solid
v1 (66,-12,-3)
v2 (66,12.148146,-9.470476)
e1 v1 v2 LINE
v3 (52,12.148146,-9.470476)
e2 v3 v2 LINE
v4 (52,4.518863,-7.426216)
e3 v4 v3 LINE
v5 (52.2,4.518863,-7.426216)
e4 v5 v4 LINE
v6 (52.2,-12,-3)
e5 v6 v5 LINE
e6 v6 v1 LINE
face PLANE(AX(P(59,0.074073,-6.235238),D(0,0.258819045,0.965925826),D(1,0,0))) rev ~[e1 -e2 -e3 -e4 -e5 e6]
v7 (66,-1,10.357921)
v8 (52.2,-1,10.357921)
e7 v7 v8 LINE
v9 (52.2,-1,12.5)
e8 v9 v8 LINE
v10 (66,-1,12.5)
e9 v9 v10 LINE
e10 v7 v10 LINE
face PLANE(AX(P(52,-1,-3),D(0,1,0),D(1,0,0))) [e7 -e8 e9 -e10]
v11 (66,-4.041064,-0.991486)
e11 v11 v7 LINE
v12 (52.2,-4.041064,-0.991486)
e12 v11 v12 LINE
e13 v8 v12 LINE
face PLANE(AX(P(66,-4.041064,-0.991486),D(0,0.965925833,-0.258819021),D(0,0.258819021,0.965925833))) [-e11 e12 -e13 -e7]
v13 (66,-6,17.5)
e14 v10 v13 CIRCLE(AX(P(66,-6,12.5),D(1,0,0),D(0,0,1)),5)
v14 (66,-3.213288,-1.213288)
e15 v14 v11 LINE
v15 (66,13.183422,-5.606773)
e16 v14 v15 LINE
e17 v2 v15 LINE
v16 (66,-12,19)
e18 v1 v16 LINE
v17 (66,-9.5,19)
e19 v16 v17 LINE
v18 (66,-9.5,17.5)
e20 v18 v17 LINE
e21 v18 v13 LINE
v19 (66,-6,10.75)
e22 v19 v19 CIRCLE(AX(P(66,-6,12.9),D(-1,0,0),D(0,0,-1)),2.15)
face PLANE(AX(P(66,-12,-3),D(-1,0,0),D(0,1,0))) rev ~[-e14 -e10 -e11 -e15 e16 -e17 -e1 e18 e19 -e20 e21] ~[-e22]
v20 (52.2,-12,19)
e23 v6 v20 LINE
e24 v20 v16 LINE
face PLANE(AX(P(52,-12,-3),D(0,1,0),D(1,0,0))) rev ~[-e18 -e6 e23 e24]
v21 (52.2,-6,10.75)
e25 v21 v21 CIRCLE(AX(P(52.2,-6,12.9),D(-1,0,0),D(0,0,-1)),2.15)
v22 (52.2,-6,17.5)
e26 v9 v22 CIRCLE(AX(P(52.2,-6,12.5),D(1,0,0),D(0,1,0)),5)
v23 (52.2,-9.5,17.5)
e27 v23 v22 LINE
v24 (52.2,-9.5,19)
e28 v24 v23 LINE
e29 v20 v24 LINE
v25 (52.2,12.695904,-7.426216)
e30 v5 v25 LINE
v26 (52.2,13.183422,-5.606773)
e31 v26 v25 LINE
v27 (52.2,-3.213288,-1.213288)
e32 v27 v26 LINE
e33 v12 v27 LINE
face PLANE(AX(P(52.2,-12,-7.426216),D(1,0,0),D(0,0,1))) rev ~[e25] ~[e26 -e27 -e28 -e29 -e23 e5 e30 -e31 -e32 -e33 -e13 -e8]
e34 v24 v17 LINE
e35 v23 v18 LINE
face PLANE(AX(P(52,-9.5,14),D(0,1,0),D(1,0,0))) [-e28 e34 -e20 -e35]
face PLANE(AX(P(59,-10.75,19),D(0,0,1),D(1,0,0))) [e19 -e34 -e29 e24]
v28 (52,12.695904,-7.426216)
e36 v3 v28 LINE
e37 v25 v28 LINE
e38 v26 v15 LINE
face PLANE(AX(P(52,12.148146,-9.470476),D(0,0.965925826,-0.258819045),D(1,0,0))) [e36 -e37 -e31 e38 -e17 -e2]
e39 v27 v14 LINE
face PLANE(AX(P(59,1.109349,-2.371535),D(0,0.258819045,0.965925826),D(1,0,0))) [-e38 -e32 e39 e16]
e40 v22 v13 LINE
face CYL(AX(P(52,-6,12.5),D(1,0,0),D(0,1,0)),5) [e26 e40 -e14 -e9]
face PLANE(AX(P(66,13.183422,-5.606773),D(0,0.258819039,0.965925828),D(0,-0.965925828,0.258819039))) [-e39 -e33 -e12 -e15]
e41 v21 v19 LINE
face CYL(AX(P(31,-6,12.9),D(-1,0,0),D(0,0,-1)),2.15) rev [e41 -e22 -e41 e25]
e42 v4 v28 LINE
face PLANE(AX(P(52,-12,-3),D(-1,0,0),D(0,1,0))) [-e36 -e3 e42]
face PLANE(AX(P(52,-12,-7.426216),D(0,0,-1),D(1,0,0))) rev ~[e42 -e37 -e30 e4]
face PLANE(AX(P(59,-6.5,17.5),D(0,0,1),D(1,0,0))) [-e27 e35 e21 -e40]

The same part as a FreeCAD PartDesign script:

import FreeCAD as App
import Part
import Sketcher

V = App.Vector
Q = App.Units.Quantity


def edges_at(feature, points):
    """Names of the edges that pass closest to the given points."""
    edges = feature.Shape.Edges
    near = lambda p: min(range(len(edges)), key=lambda i: edges[i].distToShape(Part.Vertex(*p))[0])
    return sorted({f"Edge{near(p) + 1}" for p in points})


def add_polygon(sketch, points):
    """Adds a closed chain of lines whose ends are joined by coincident constraints."""
    first, n = sketch.GeometryCount, len(points)
    for a, b in zip(points, points[1:] + points[:1]):
        sketch.addGeometry(Part.LineSegment(App.Vector(*a, 0), App.Vector(*b, 0)), False)
    for i in range(n):
        sketch.addConstraint(Sketcher.Constraint("Coincident", first + i, 2, first + (i + 1) % n, 1))

doc = App.newDocument("Part")
params = doc.addObject("Spreadsheet::Sheet", "Params")
for row, (alias, value) in enumerate([
    ("sketch1_diameter", "4.3 mm"),
    ("pad1_length", "50 mm"),
    ("sketch2_width", "14 mm"),
    ("sketch2_height", "11 mm"),
    ("pad2_length", "20.5 mm"),
    ("chamfer_size", "4 mm"),
    ("fillet_radius", "5 mm"),
    ("sketch3_width", "14 mm"),
    ("sketch3_height", "25 mm"),
    ("pad3_length", "4 mm"),
    ("sketch4_width", "14 mm"),
    ("sketch4_height", "2.5 mm"),
    ("pad4_length", "5 mm"),
    ("pocket1_length", "15 mm"),
    ("sketch6_width", "0.2 mm"),
    ("pocket2_length", "80 mm"),
], start=1):
    params.set(f"A{row}", alias)
    params.set(f"B{row}", "=" + value)
    params.setAlias(f"B{row}", alias)

body = doc.addObject("PartDesign::Body", "Body")

sketch1 = body.newObject("Sketcher::SketchObject", "Sketch")
sketch1.AttachmentSupport = (doc.getObject("XY_Plane"), [""])
sketch1.MapMode = "FlatFace"
sketch1.addGeometry(Part.Circle(V(0, 0, 0), V(0, 0, 1), 2.15), False)
sketch1.addConstraint(Sketcher.Constraint("Coincident", 0, 3, -1, 1))
sketch1.addConstraint(Sketcher.Constraint("Diameter", 0, Q("4.3 mm")))
sketch1.setExpression("Constraints[1]", "Params.sketch1_diameter")
pad1 = body.newObject("PartDesign::Pad", "Pad")
pad1.Profile = sketch1
pad1.setExpression("Length", "Params.pad1_length")
body2 = doc.addObject("PartDesign::Body", "Body001")
doc.recompute()

body.Placement = App.Placement(V(0, 0, 0), App.Rotation(V(0, 1, 0), 90))
boolean = body2.newObject("PartDesign::Boolean", "Boolean")
boolean.Type = "Fuse"
boolean.addObjects([body])
body3 = doc.addObject("PartDesign::Body", "Body002")
doc.recompute()

body2.Placement = App.Placement(V(31, -6, 12.9), App.Rotation(V(0, 0, 1), 0))
boolean2 = body3.newObject("PartDesign::Boolean", "Boolean001")
boolean2.Type = "Fuse"
boolean2.addObjects([body2])
body4 = doc.addObject("PartDesign::Body", "Body003")

sketch2 = body4.newObject("Sketcher::SketchObject", "Sketch001")
sketch2.AttachmentSupport = (doc.getObject("XY_Plane003"), [""])
sketch2.MapMode = "FlatFace"
sketch2.AttachmentOffset = App.Placement(V(0, 0, -3), App.Rotation())
add_polygon(sketch2, [(52, -1), (52, -12), (66, -12), (66, -1)])
sketch2.addConstraint(Sketcher.Constraint("Vertical", 0))
sketch2.addConstraint(Sketcher.Constraint("Horizontal", 1))
sketch2.addConstraint(Sketcher.Constraint("Vertical", 2))
sketch2.addConstraint(Sketcher.Constraint("Horizontal", 3))
sketch2.addConstraint(Sketcher.Constraint("DistanceX", 1, 1, 1, 2, Q("14 mm")))
sketch2.addConstraint(Sketcher.Constraint("DistanceY", 0, 2, 0, 1, Q("11 mm")))
sketch2.addConstraint(Sketcher.Constraint("DistanceX", -1, 1, 0, 2, Q("52 mm")))
sketch2.addConstraint(Sketcher.Constraint("DistanceY", 0, 2, -1, 1, Q("12 mm")))
sketch2.setExpression("Constraints[8]", "Params.sketch2_width")
sketch2.setExpression("Constraints[9]", "Params.sketch2_height")
pad2 = body4.newObject("PartDesign::Pad", "Pad001")
pad2.Profile = sketch2
pad2.setExpression("Length", "Params.pad2_length")
doc.recompute()

chamfer = body4.newObject("PartDesign::Chamfer", "Chamfer")
chamfer.Base = (pad2, edges_at(pad2, [(59, -1, -3)]))
chamfer.setExpression("Size", "Params.chamfer_size")
doc.recompute()

fillet = body4.newObject("PartDesign::Fillet", "Fillet")
fillet.Base = (chamfer, edges_at(chamfer, [(59, -1, 17.5)]))
fillet.setExpression("Radius", "Params.fillet_radius")
body5 = doc.addObject("PartDesign::Body", "Body004")

sketch3 = body5.newObject("Sketcher::SketchObject", "Sketch002")
sketch3.AttachmentSupport = (doc.getObject("XY_Plane004"), [""])
sketch3.MapMode = "FlatFace"
add_polygon(sketch3, [(0, 25), (0, 0), (14, 0), (14, 25)])
sketch3.addConstraint(Sketcher.Constraint("Vertical", 0))
sketch3.addConstraint(Sketcher.Constraint("Horizontal", 1))
sketch3.addConstraint(Sketcher.Constraint("Vertical", 2))
sketch3.addConstraint(Sketcher.Constraint("Horizontal", 3))
sketch3.addConstraint(Sketcher.Constraint("Coincident", 0, 2, -1, 1))
sketch3.addConstraint(Sketcher.Constraint("DistanceX", 1, 1, 1, 2, Q("14 mm")))
sketch3.addConstraint(Sketcher.Constraint("DistanceY", 0, 2, 0, 1, Q("25 mm")))
sketch3.setExpression("Constraints[9]", "Params.sketch3_width")
sketch3.setExpression("Constraints[10]", "Params.sketch3_height")
pad3 = body5.newObject("PartDesign::Pad", "Pad002")
pad3.Profile = sketch3
pad3.setExpression("Length", "Params.pad3_length")
body6 = doc.addObject("PartDesign::Body", "Body005")
doc.recompute()

body5.Placement = App.Placement(V(0, 0, 0), App.Rotation(V(1, 0, 0), 345))
boolean3 = body6.newObject("PartDesign::Boolean", "Boolean002")
boolean3.Type = "Fuse"
boolean3.addObjects([body5])
body7 = doc.addObject("PartDesign::Body", "Body006")
doc.recompute()

body6.Placement = App.Placement(V(52, -12, -3), App.Rotation(V(0, 0, 1), 0))
boolean4 = body7.newObject("PartDesign::Boolean", "Boolean003")
boolean4.Type = "Fuse"
boolean4.addObjects([body6])
body8 = doc.addObject("PartDesign::Body", "Body007")

sketch4 = body8.newObject("Sketcher::SketchObject", "Sketch003")
sketch4.AttachmentSupport = (doc.getObject("XY_Plane007"), [""])
sketch4.MapMode = "FlatFace"
sketch4.AttachmentOffset = App.Placement(V(0, 0, 14), App.Rotation())
add_polygon(sketch4, [(52, -9.5), (52, -12), (66, -12), (66, -9.5)])
sketch4.addConstraint(Sketcher.Constraint("Vertical", 0))
sketch4.addConstraint(Sketcher.Constraint("Horizontal", 1))
sketch4.addConstraint(Sketcher.Constraint("Vertical", 2))
sketch4.addConstraint(Sketcher.Constraint("Horizontal", 3))
sketch4.addConstraint(Sketcher.Constraint("DistanceX", 1, 1, 1, 2, Q("14 mm")))
sketch4.addConstraint(Sketcher.Constraint("DistanceY", 0, 2, 0, 1, Q("2.5 mm")))
sketch4.addConstraint(Sketcher.Constraint("DistanceX", -1, 1, 0, 2, Q("52 mm")))
sketch4.addConstraint(Sketcher.Constraint("DistanceY", 0, 2, -1, 1, Q("12 mm")))
sketch4.setExpression("Constraints[8]", "Params.sketch4_width")
sketch4.setExpression("Constraints[9]", "Params.sketch4_height")
pad4 = body8.newObject("PartDesign::Pad", "Pad003")
pad4.Profile = sketch4
pad4.setExpression("Length", "Params.pad4_length")
doc.recompute()

boolean5 = body8.newObject("PartDesign::Boolean", "Boolean004")
boolean5.Type = "Fuse"
boolean5.addObjects([body4])
doc.recompute()

boolean6 = body8.newObject("PartDesign::Boolean", "Boolean005")
boolean6.Type = "Fuse"
boolean6.addObjects([body7])
doc.recompute()

boolean7 = body8.newObject("PartDesign::Boolean", "Boolean006")
boolean7.Type = "Cut"
boolean7.addObjects([body3])

sketch5 = body8.newObject("Sketcher::SketchObject", "Sketch004")
sketch5.AttachmentSupport = (doc.getObject("YZ_Plane007"), [""])
sketch5.MapMode = "FlatFace"
sketch5.AttachmentOffset = App.Placement(V(0, 0, 66), App.Rotation())
add_polygon(sketch5, [(-4.041064, -0.991486), (13.183422, -5.606773), (-0.407217, 12.570217)])
sketch5.addConstraint(Sketcher.Constraint("Perpendicular", 0, 2))
sketch5.addConstraint(Sketcher.Constraint("Angle", 0, Q("-15 deg")))
sketch5.addConstraint(Sketcher.Constraint("Distance", 1, Q("22.696 mm")))
sketch5.addConstraint(Sketcher.Constraint("Distance", 0, Q("17.8321 mm")))
sketch5.addConstraint(Sketcher.Constraint("DistanceX", -1, 1, 0, 2, Q("13.183422 mm")))
sketch5.addConstraint(Sketcher.Constraint("DistanceY", 0, 2, -1, 1, Q("5.606773 mm")))
pocket1 = body8.newObject("PartDesign::Pocket", "Pocket")
pocket1.Profile = sketch5
pocket1.setExpression("Length", "Params.pocket1_length")

sketch6 = body8.newObject("Sketcher::SketchObject", "Sketch005")
sketch6.AttachmentSupport = (doc.getObject("XZ_Plane007"), [""])
sketch6.MapMode = "FlatFace"
sketch6.AttachmentOffset = App.Placement(V(0, 0, 12), App.Rotation())
add_polygon(sketch6, [(52, 26.918304), (52, -7.426216), (52.2, -7.426216), (52.2, 26.918304)])
sketch6.addConstraint(Sketcher.Constraint("Vertical", 0))
sketch6.addConstraint(Sketcher.Constraint("Horizontal", 1))
sketch6.addConstraint(Sketcher.Constraint("Vertical", 2))
sketch6.addConstraint(Sketcher.Constraint("Horizontal", 3))
sketch6.addConstraint(Sketcher.Constraint("DistanceX", 1, 1, 1, 2, Q("0.2 mm")))
sketch6.addConstraint(Sketcher.Constraint("DistanceX", -1, 1, 0, 2, Q("52 mm")))
sketch6.addConstraint(Sketcher.Constraint("DistanceY", 0, 2, 0, 1, Q("34.34452 mm")))
sketch6.addConstraint(Sketcher.Constraint("DistanceY", 0, 2, -1, 1, Q("7.426216 mm")))
sketch6.setExpression("Constraints[8]", "Params.sketch6_width")
pocket2 = body8.newObject("PartDesign::Pocket", "Pocket001")
pocket2.Profile = sketch6
pocket2.setExpression("Length", "Params.pocket2_length")

doc.recompute()
